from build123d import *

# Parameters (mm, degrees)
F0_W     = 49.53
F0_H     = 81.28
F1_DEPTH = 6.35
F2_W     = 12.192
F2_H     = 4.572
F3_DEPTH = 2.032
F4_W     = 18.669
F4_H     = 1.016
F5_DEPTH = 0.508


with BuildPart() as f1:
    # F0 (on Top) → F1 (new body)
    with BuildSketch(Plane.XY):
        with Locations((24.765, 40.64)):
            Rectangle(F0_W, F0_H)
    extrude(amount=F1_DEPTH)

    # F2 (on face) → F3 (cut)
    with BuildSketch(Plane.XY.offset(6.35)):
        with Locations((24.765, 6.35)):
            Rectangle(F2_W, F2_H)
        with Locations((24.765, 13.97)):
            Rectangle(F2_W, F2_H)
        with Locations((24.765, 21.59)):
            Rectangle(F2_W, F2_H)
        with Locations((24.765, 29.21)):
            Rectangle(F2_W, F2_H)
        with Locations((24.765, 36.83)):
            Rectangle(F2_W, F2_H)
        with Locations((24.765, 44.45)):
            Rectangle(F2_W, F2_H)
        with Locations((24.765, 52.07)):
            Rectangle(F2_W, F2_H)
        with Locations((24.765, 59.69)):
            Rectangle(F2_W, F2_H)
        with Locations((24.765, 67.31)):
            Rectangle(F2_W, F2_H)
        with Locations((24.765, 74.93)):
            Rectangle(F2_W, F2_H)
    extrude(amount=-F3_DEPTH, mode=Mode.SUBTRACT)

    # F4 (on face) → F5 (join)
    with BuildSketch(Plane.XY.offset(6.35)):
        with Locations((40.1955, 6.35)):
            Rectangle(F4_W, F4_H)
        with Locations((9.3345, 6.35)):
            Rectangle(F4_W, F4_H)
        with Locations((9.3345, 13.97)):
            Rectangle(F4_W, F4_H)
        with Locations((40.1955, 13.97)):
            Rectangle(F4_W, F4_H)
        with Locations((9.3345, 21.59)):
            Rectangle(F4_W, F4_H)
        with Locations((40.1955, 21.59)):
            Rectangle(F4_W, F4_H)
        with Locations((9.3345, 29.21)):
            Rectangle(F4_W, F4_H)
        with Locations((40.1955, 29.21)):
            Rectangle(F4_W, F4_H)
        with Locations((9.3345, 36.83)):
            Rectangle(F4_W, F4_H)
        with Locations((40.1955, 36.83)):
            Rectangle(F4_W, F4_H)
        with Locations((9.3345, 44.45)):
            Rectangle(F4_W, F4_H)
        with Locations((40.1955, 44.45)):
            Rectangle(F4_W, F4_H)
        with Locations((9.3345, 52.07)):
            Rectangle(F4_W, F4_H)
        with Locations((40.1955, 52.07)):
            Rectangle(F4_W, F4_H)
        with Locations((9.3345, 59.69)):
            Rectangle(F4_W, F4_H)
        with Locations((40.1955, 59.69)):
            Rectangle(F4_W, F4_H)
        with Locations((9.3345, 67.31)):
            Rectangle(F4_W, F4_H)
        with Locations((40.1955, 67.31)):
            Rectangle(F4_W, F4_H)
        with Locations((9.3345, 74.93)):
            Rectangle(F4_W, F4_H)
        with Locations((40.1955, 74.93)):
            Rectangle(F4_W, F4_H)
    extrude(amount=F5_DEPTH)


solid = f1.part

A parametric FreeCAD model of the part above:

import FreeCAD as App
import Part
import Sketcher
from FreeCAD import Vector
Q = App.Units.Quantity


def add_polygon(sketch, points):
    """Adds a closed chain of lines whose ends are joined by coincident constraints."""
    first, n = sketch.GeometryCount, len(points)
    for a, b in zip(points, points[1:] + points[:1]):
        sketch.addGeometry(Part.LineSegment(App.Vector(*a, 0), App.Vector(*b, 0)), False)
    for i in range(n):
        sketch.addConstraint(Sketcher.Constraint("Coincident", first + i, 2, first + (i + 1) % n, 1))

doc = App.newDocument("Part")
body = doc.addObject("PartDesign::Body", "Body")

sketch1 = body.newObject("Sketcher::SketchObject", "Sketch")
sketch1.AttachmentSupport = (doc.getObject("XY_Plane"), [""])
sketch1.MapMode = "FlatFace"
add_polygon(sketch1, [(0, 81), (0, 0), (50, 0), (50, 81)])
sketch1.addConstraint([
    Sketcher.Constraint("Vertical", 0),
    Sketcher.Constraint("Horizontal", 1),
    Sketcher.Constraint("Vertical", 2),
    Sketcher.Constraint("Horizontal", 3),
    Sketcher.Constraint("Coincident", 0, 2, -1, 1),
    Sketcher.Constraint("DistanceY", 0, 2, 0, 1, Q("3.2 in")),
    Sketcher.Constraint("DistanceX", 1, 1, 1, 2, Q("1.95 in")),
])
pad1 = body.newObject("PartDesign::Pad", "Pad")
pad1.Profile = sketch1
pad1.Length = Q("0.25 in")

sketch2 = body.newObject("Sketcher::SketchObject", "Sketch001")
sketch2.AttachmentSupport = (doc.getObject("XY_Plane"), [""])
sketch2.MapMode = "FlatFace"
sketch2.AttachmentOffset = App.Placement(Vector(0, 0, 0.25 * 25.4), App.Rotation())
add_polygon(sketch2, [(18.7, 8.6), (18.7, 4.1), (30.9, 4.1), (30.9, 8.6)])
add_polygon(sketch2, [(18.7, 16.3), (18.7, 11.7), (30.9, 11.7), (30.9, 16.3)])
add_polygon(sketch2, [(18.7, 23.9), (18.7, 19.3), (30.9, 19.3), (30.9, 23.9)])
add_polygon(sketch2, [(18.7, 31.5), (18.7, 26.9), (30.9, 26.9), (30.9, 31.5)])
add_polygon(sketch2, [(18.7, 39.1), (18.7, 34.5), (30.9, 34.5), (30.9, 39.1)])
add_polygon(sketch2, [(18.7, 46.7), (18.7, 42.2), (30.9, 42.2), (30.9, 46.7)])
add_polygon(sketch2, [(18.7, 54.4), (18.7, 49.8), (30.9, 49.8), (30.9, 54.4)])
add_polygon(sketch2, [(18.7, 62), (18.7, 57.4), (30.9, 57.4), (30.9, 62)])
add_polygon(sketch2, [(18.7, 69.6), (18.7, 65), (30.9, 65), (30.9, 69.6)])
add_polygon(sketch2, [(18.7, 77.2), (18.7, 72.6), (30.9, 72.6), (30.9, 77.2)])
sketch2.addConstraint([
    Sketcher.Constraint("Vertical", 0),
    Sketcher.Constraint("Horizontal", 1),
    Sketcher.Constraint("Vertical", 2),
    Sketcher.Constraint("Horizontal", 3),
    Sketcher.Constraint("Vertical", 4),
    Sketcher.Constraint("Horizontal", 5),
    Sketcher.Constraint("Vertical", 6),
    Sketcher.Constraint("Horizontal", 7),
    Sketcher.Constraint("Vertical", 8),
    Sketcher.Constraint("Horizontal", 9),
    Sketcher.Constraint("Vertical", 10),
    Sketcher.Constraint("Horizontal", 11),
    Sketcher.Constraint("Vertical", 12),
    Sketcher.Constraint("Horizontal", 13),
    Sketcher.Constraint("Vertical", 14),
    Sketcher.Constraint("Horizontal", 15),
    Sketcher.Constraint("Vertical", 16),
    Sketcher.Constraint("Horizontal", 17),
    Sketcher.Constraint("Vertical", 18),
    Sketcher.Constraint("Horizontal", 19),
    Sketcher.Constraint("Vertical", 20),
    Sketcher.Constraint("Horizontal", 21),
    Sketcher.Constraint("Vertical", 22),
    Sketcher.Constraint("Horizontal", 23),
    Sketcher.Constraint("Vertical", 24),
    Sketcher.Constraint("Horizontal", 25),
    Sketcher.Constraint("Vertical", 26),
    Sketcher.Constraint("Horizontal", 27),
    Sketcher.Constraint("Vertical", 28),
    Sketcher.Constraint("Horizontal", 29),
    Sketcher.Constraint("Vertical", 30),
    Sketcher.Constraint("Horizontal", 31),
    Sketcher.Constraint("Vertical", 32),
    Sketcher.Constraint("Horizontal", 33),
    Sketcher.Constraint("Vertical", 34),
    Sketcher.Constraint("Horizontal", 35),
    Sketcher.Constraint("Vertical", 36),
    Sketcher.Constraint("Horizontal", 37),
    Sketcher.Constraint("Vertical", 38),
    Sketcher.Constraint("Horizontal", 39),
    Sketcher.Constraint("Vertical", 3, 2, 4, 2),
    Sketcher.Constraint("Vertical", 2, 2, 5, 2),
    Sketcher.Constraint("Vertical", 7, 2, 8, 2),
    Sketcher.Constraint("Vertical", 6, 2, 9, 2),
    Sketcher.Constraint("Vertical", 11, 2, 12, 2),
    Sketcher.Constraint("Vertical", 10, 2, 13, 2),
    Sketcher.Constraint("Vertical", 15, 2, 16, 2),
    Sketcher.Constraint("Vertical", 14, 2, 17, 2),
    Sketcher.Constraint("Vertical", 19, 2, 20, 2),
    Sketcher.Constraint("Vertical", 18, 2, 21, 2),
    Sketcher.Constraint("Vertical", 23, 2, 24, 2),
    Sketcher.Constraint("Vertical", 22, 2, 25, 2),
    Sketcher.Constraint("Vertical", 27, 2, 28, 2),
    Sketcher.Constraint("Vertical", 26, 2, 29, 2),
    Sketcher.Constraint("Vertical", 31, 2, 32, 2),
    Sketcher.Constraint("Vertical", 30, 2, 33, 2),
    Sketcher.Constraint("Vertical", 35, 2, 36, 2),
    Sketcher.Constraint("Vertical", 34, 2, 37, 2),
    Sketcher.Constraint("Equal", 2, 4),
    Sketcher.Constraint("Equal", 6, 8),
    Sketcher.Constraint("Equal", 10, 12),
    Sketcher.Constraint("Equal", 14, 16),
    Sketcher.Constraint("Equal", 18, 20),
    Sketcher.Constraint("Equal", 22, 24),
    Sketcher.Constraint("Equal", 26, 28),
    Sketcher.Constraint("Equal", 30, 32),
    Sketcher.Constraint("Equal", 34, 36),
    Sketcher.Constraint("DistanceX", 1, 1, 1, 2, Q("0.48 in")),
    Sketcher.Constraint("DistanceY", 0, 2, 0, 1, Q("0.18 in")),
    Sketcher.Constraint("DistanceY", 0, 2, 4, 2, Q("0.3 in")),
    Sketcher.Constraint("DistanceY", 4, 2, 8, 2, Q("0.3 in")),
    Sketcher.Constraint("DistanceY", 8, 2, 12, 2, Q("0.3 in")),
    Sketcher.Constraint("DistanceY", 12, 2, 16, 2, Q("0.3 in")),
    Sketcher.Constraint("DistanceY", 16, 2, 20, 2, Q("0.3 in")),
    Sketcher.Constraint("DistanceY", 20, 2, 24, 2, Q("0.3 in")),
    Sketcher.Constraint("DistanceY", 24, 2, 28, 2, Q("0.3 in")),
    Sketcher.Constraint("DistanceY", 28, 2, 32, 2, Q("0.3 in")),
    Sketcher.Constraint("DistanceY", 32, 2, 36, 2, Q("0.3 in")),
    Sketcher.Constraint("DistanceY", -1, 1, 0, 2, Q("0.16 in")),
    Sketcher.Constraint("DistanceX", -1, 1, 0, 2, Q("0.735 in")),
])
pocket1 = body.newObject("PartDesign::Pocket", "Pocket")
pocket1.Profile = sketch2
pocket1.Length = Q("0.08 in")

sketch3 = body.newObject("Sketcher::SketchObject", "Sketch002")
sketch3.AttachmentSupport = (doc.getObject("XY_Plane"), [""])
sketch3.MapMode = "FlatFace"
sketch3.AttachmentOffset = App.Placement(Vector(0, 0, 0.25 * 25.4), App.Rotation())
add_polygon(sketch3, [(30.9, 6.9), (30.9, 5.8), (49.5, 5.8), (49.5, 6.9)])
add_polygon(sketch3, [(0, 6.9), (0, 5.8), (18.7, 5.8), (18.7, 6.9)])
add_polygon(sketch3, [(0, 14.5), (0, 13.5), (18.7, 13.5), (18.7, 14.5)])
add_polygon(sketch3, [(30.9, 14.5), (30.9, 13.5), (49.5, 13.5), (49.5, 14.5)])
add_polygon(sketch3, [(0, 22.1), (0, 21.1), (18.7, 21.1), (18.7, 22.1)])
add_polygon(sketch3, [(30.9, 22.1), (30.9, 21.1), (49.5, 21.1), (49.5, 22.1)])
add_polygon(sketch3, [(0, 29.7), (0, 28.7), (18.7, 28.7), (18.7, 29.7)])
add_polygon(sketch3, [(30.9, 29.7), (30.9, 28.7), (49.5, 28.7), (49.5, 29.7)])
add_polygon(sketch3, [(0, 37.3), (0, 36.3), (18.7, 36.3), (18.7, 37.3)])
add_polygon(sketch3, [(30.9, 37.3), (30.9, 36.3), (49.5, 36.3), (49.5, 37.3)])
add_polygon(sketch3, [(0, 45), (0, 43.9), (18.7, 43.9), (18.7, 45)])
add_polygon(sketch3, [(30.9, 45), (30.9, 43.9), (49.5, 43.9), (49.5, 45)])
add_polygon(sketch3, [(0, 52.6), (0, 51.6), (18.7, 51.6), (18.7, 52.6)])
add_polygon(sketch3, [(30.9, 52.6), (30.9, 51.6), (49.5, 51.6), (49.5, 52.6)])
add_polygon(sketch3, [(0, 60.2), (0, 59.2), (18.7, 59.2), (18.7, 60.2)])
add_polygon(sketch3, [(30.9, 60.2), (30.9, 59.2), (49.5, 59.2), (49.5, 60.2)])
add_polygon(sketch3, [(0, 67.8), (0, 66.8), (18.7, 66.8), (18.7, 67.8)])
add_polygon(sketch3, [(30.9, 67.8), (30.9, 66.8), (49.5, 66.8), (49.5, 67.8)])
add_polygon(sketch3, [(0, 75.4), (0, 74.4), (18.7, 74.4), (18.7, 75.4)])
add_polygon(sketch3, [(30.9, 75.4), (30.9, 74.4), (49.5, 74.4), (49.5, 75.4)])
sketch3.addConstraint([
    Sketcher.Constraint("Vertical", 0),
    Sketcher.Constraint("Horizontal", 1),
    Sketcher.Constraint("Vertical", 2),
    Sketcher.Constraint("Horizontal", 3),
    Sketcher.Constraint("Vertical", 4),
    Sketcher.Constraint("Horizontal", 5),
    Sketcher.Constraint("Vertical", 6),
    Sketcher.Constraint("Horizontal", 7),
    Sketcher.Constraint("Vertical", 8),
    Sketcher.Constraint("Horizontal", 9),
    Sketcher.Constraint("Vertical", 10),
    Sketcher.Constraint("Horizontal", 11),
    Sketcher.Constraint("Vertical", 12),
    Sketcher.Constraint("Horizontal", 13),
    Sketcher.Constraint("Vertical", 14),
    Sketcher.Constraint("Horizontal", 15),
    Sketcher.Constraint("Vertical", 16),
    Sketcher.Constraint("Horizontal", 17),
    Sketcher.Constraint("Vertical", 18),
    Sketcher.Constraint("Horizontal", 19),
    Sketcher.Constraint("Vertical", 20),
    Sketcher.Constraint("Horizontal", 21),
    Sketcher.Constraint("Vertical", 22),
    Sketcher.Constraint("Horizontal", 23),
    Sketcher.Constraint("Vertical", 24),
    Sketcher.Constraint("Horizontal", 25),
    Sketcher.Constraint("Vertical", 26),
    Sketcher.Constraint("Horizontal", 27),
    Sketcher.Constraint("Vertical", 28),
    Sketcher.Constraint("Horizontal", 29),
    Sketcher.Constraint("Vertical", 30),
    Sketcher.Constraint("Horizontal", 31),
    Sketcher.Constraint("Vertical", 32),
    Sketcher.Constraint("Horizontal", 33),
    Sketcher.Constraint("Vertical", 34),
    Sketcher.Constraint("Horizontal", 35),
    Sketcher.Constraint("Vertical", 36),
    Sketcher.Constraint("Horizontal", 37),
    Sketcher.Constraint("Vertical", 38),
    Sketcher.Constraint("Horizontal", 39),
    Sketcher.Constraint("Vertical", 40),
    Sketcher.Constraint("Horizontal", 41),
    Sketcher.Constraint("Vertical", 42),
    Sketcher.Constraint("Horizontal", 43),
    Sketcher.Constraint("Vertical", 44),
    Sketcher.Constraint("Horizontal", 45),
    Sketcher.Constraint("Vertical", 46),
    Sketcher.Constraint("Horizontal", 47),
    Sketcher.Constraint("Vertical", 48),
    Sketcher.Constraint("Horizontal", 49),
    Sketcher.Constraint("Vertical", 50),
    Sketcher.Constraint("Horizontal", 51),
    Sketcher.Constraint("Vertical", 52),
    Sketcher.Constraint("Horizontal", 53),
    Sketcher.Constraint("Vertical", 54),
    Sketcher.Constraint("Horizontal", 55),
    Sketcher.Constraint("Vertical", 56),
    Sketcher.Constraint("Horizontal", 57),
    Sketcher.Constraint("Vertical", 58),
    Sketcher.Constraint("Horizontal", 59),
    Sketcher.Constraint("Vertical", 60),
    Sketcher.Constraint("Horizontal", 61),
    Sketcher.Constraint("Vertical", 62),
    Sketcher.Constraint("Horizontal", 63),
    Sketcher.Constraint("Vertical", 64),
    Sketcher.Constraint("Horizontal", 65),
    Sketcher.Constraint("Vertical", 66),
    Sketcher.Constraint("Horizontal", 67),
    Sketcher.Constraint("Vertical", 68),
    Sketcher.Constraint("Horizontal", 69),
    Sketcher.Constraint("Vertical", 70),
    Sketcher.Constraint("Horizontal", 71),
    Sketcher.Constraint("Vertical", 72),
    Sketcher.Constraint("Horizontal", 73),
    Sketcher.Constraint("Vertical", 74),
    Sketcher.Constraint("Horizontal", 75),
    Sketcher.Constraint("Vertical", 76),
    Sketcher.Constraint("Horizontal", 77),
    Sketcher.Constraint("Vertical", 78),
    Sketcher.Constraint("Horizontal", 79),
    Sketcher.Constraint("PointOnObject", 4, 2, -2),
    Sketcher.Constraint("PointOnObject", 8, 2, -2),
    Sketcher.Constraint("PointOnObject", 16, 2, -2),
    Sketcher.Constraint("PointOnObject", 24, 2, -2),
    Sketcher.Constraint("PointOnObject", 32, 2, -2),
    Sketcher.Constraint("PointOnObject", 40, 2, -2),
    Sketcher.Constraint("PointOnObject", 48, 2, -2),
    Sketcher.Constraint("PointOnObject", 56, 2, -2),
    Sketcher.Constraint("PointOnObject", 64, 2, -2),
    Sketcher.Constraint("PointOnObject", 72, 2, -2),
    Sketcher.Constraint("Horizontal", 1, 2, 4, 2),
    Sketcher.Constraint("Horizontal", 3, 2, 6, 2),
    Sketcher.Constraint("Horizontal", 9, 2, 12, 2),
    Sketcher.Constraint("Horizontal", 11, 2, 14, 2),
    Sketcher.Constraint("Horizontal", 17, 2, 20, 2),
    Sketcher.Constraint("Horizontal", 19, 2, 22, 2),
    Sketcher.Constraint("Horizontal", 25, 2, 28, 2),
    Sketcher.Constraint("Horizontal", 27, 2, 30, 2),
    Sketcher.Constraint("Horizontal", 33, 2, 36, 2),
    Sketcher.Constraint("Horizontal", 35, 2, 38, 2),
    Sketcher.Constraint("Horizontal", 41, 2, 44, 2),
    Sketcher.Constraint("Horizontal", 43, 2, 46, 2),
    Sketcher.Constraint("Horizontal", 49, 2, 52, 2),
    Sketcher.Constraint("Horizontal", 51, 2, 54, 2),
    Sketcher.Constraint("Horizontal", 57, 2, 60, 2),
    Sketcher.Constraint("Horizontal", 59, 2, 62, 2),
    Sketcher.Constraint("Horizontal", 65, 2, 68, 2),
    Sketcher.Constraint("Horizontal", 67, 2, 70, 2),
    Sketcher.Constraint("Horizontal", 73, 2, 76, 2),
    Sketcher.Constraint("Horizontal", 75, 2, 78, 2),
    Sketcher.Constraint("Vertical", 6, 2, 9, 2),
    Sketcher.Constraint("Vertical", 3, 2, 12, 2),
    Sketcher.Constraint("Vertical", 2, 2, 13, 2),
    Sketcher.Constraint("Vertical", 10, 2, 17, 2),
    Sketcher.Constraint("Vertical", 15, 2, 20, 2),
    Sketcher.Constraint("Vertical", 14, 2, 21, 2),
    Sketcher.Constraint("Vertical", 18, 2, 25, 2),
    Sketcher.Constraint("Vertical", 23, 2, 28, 2),
    Sketcher.Constraint("Vertical", 22, 2, 29, 2),
    Sketcher.Constraint("Vertical", 26, 2, 33, 2),
    Sketcher.Constraint("Vertical", 31, 2, 36, 2),
    Sketcher.Constraint("Vertical", 30, 2, 37, 2),
    Sketcher.Constraint("Vertical", 34, 2, 41, 2),
    Sketcher.Constraint("Vertical", 39, 2, 44, 2),
    Sketcher.Constraint("Vertical", 38, 2, 45, 2),
    Sketcher.Constraint("Vertical", 42, 2, 49, 2),
    Sketcher.Constraint("Vertical", 47, 2, 52, 2),
    Sketcher.Constraint("Vertical", 46, 2, 53, 2),
    Sketcher.Constraint("Vertical", 50, 2, 57, 2),
    Sketcher.Constraint("Vertical", 55, 2, 60, 2),
    Sketcher.Constraint("Vertical", 54, 2, 61, 2),
    Sketcher.Constraint("Vertical", 58, 2, 65, 2),
    Sketcher.Constraint("Vertical", 63, 2, 68, 2),
    Sketcher.Constraint("Vertical", 62, 2, 69, 2),
    Sketcher.Constraint("Vertical", 66, 2, 73, 2),
    Sketcher.Constraint("Vertical", 71, 2, 76, 2),
    Sketcher.Constraint("Vertical", 70, 2, 77, 2),
    Sketcher.Constraint("Equal", 3, 5),
    Sketcher.Constraint("Equal", 6, 8),
    Sketcher.Constraint("Equal", 14, 16),
    Sketcher.Constraint("Equal", 22, 24),
    Sketcher.Constraint("Equal", 30, 32),
    Sketcher.Constraint("Equal", 38, 40),
    Sketcher.Constraint("Equal", 46, 48),
    Sketcher.Constraint("Equal", 54, 56),
    Sketcher.Constraint("Equal", 62, 64),
    Sketcher.Constraint("Equal", 70, 72),
    Sketcher.Constraint("DistanceY", 0, 2, 0, 1, Q("0.04 in")),
    Sketcher.Constraint("DistanceX", 1, 1, 1, 2, Q("0.735 in")),
    Sketcher.Constraint("DistanceY", -1, 1, 0, 2, Q("0.23 in")),
    Sketcher.Constraint("DistanceX", -1, 1, 1, 2, Q("1.95 in")),
    Sketcher.Constraint("DistanceY", -1, 1, 8, 2, Q("0.53 in")),
    Sketcher.Constraint("DistanceY", -1, 1, 16, 2, Q("0.83 in")),
    Sketcher.Constraint("DistanceY", -1, 1, 24, 2, Q("1.13 in")),
    Sketcher.Constraint("DistanceY", -1, 1, 32, 2, Q("1.43 in")),
    Sketcher.Constraint("DistanceY", -1, 1, 40, 2, Q("1.73 in")),
    Sketcher.Constraint("DistanceY", -1, 1, 48, 2, Q("2.03 in")),
    Sketcher.Constraint("DistanceY", -1, 1, 56, 2, Q("2.33 in")),
    Sketcher.Constraint("DistanceY", -1, 1, 64, 2, Q("2.63 in")),
    Sketcher.Constraint("DistanceY", -1, 1, 72, 2, Q("2.93 in")),
])
pad2 = body.newObject("PartDesign::Pad", "Pad001")
pad2.Profile = sketch3
pad2.Length = Q("0.02 in")

doc.recompute()
